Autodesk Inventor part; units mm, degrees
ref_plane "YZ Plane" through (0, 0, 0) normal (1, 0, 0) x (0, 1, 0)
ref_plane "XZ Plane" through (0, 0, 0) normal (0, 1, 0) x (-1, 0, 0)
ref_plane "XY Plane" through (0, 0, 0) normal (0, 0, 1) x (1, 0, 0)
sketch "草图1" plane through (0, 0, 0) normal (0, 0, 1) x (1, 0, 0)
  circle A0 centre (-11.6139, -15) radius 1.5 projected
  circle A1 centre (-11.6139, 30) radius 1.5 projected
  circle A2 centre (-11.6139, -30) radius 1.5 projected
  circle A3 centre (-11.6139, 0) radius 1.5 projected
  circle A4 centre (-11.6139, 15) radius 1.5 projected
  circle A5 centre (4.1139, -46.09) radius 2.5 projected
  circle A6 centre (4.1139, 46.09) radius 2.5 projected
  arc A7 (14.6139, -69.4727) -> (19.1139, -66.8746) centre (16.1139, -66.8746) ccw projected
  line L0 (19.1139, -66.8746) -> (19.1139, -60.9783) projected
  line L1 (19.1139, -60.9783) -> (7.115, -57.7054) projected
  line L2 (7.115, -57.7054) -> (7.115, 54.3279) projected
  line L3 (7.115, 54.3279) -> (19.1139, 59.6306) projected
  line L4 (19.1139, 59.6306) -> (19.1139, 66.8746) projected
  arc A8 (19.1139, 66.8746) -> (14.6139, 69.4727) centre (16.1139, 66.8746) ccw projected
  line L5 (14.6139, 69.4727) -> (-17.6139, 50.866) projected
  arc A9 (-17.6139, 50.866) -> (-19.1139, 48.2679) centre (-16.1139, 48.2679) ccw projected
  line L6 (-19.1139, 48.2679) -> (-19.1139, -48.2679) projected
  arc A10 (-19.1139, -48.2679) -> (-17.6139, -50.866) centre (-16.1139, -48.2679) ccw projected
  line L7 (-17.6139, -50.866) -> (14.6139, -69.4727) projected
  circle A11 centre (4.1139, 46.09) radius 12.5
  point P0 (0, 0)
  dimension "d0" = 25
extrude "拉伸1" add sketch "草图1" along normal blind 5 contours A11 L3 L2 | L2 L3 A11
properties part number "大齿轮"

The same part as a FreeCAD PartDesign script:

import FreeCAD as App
import Part
import Sketcher

V = App.Vector
Q = App.Units.Quantity

doc = App.newDocument("Part")
body = doc.addObject("PartDesign::Body", "Body")

# Sketch on XY plane
sketch1 = body.newObject("Sketcher::SketchObject", "Sketch")
sketch1.AttachmentSupport = (doc.getObject("XY_Plane"), [""])
sketch1.MapMode = "FlatFace"
sketch1.addGeometry([
    Part.Circle(V(4.1, 46.1, 0), V(0, 0, 1), 12.5),
    Part.Circle(V(4.1, 46.1, 0), V(0, 0, 1), 2.5),
], False)
sketch1.addConstraint([
    Sketcher.Constraint("Coincident", 1, 3, 0, 3),
    Sketcher.Constraint("Diameter", 0, Q("25 mm")),
    Sketcher.Constraint("Diameter", 1, Q("5 mm")),
    Sketcher.Constraint("DistanceY", -1, 1, 0, 3, Q("46.09 mm")),
    Sketcher.Constraint("DistanceX", -1, 1, 0, 3, Q("4.114 mm")),
])
pad1 = body.newObject("PartDesign::Pad", "Pad")
pad1.Profile = sketch1
pad1.Length = 5

doc.recompute()
